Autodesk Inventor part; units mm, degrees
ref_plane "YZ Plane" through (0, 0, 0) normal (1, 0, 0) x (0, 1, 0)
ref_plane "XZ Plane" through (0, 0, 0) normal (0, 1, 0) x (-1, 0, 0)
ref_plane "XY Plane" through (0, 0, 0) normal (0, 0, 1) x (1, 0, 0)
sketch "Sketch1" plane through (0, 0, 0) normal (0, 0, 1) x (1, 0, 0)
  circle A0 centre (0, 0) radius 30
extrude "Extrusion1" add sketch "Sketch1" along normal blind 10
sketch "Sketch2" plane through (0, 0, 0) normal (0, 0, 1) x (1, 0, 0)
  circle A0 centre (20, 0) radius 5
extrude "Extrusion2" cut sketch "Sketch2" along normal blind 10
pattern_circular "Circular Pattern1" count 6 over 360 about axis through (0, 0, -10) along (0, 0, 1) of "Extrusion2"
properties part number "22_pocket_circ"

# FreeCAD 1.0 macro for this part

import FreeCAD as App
import Part
import Sketcher

doc = App.newDocument("Part")
body = doc.addObject("PartDesign::Body", "Body")

# Sketch on XY plane
sketch1 = doc.addObject("Sketcher::SketchObject", "Sketch")
body.addObject(sketch1)
sketch1.AttachmentSupport = (doc.XY_Plane, [""])
sketch1.MapMode = "FlatFace"
sketch1.addGeometry(Part.Circle(App.Vector(0, 0, 0), App.Vector(0, 0, 1), 30), False)
sketch1.addConstraint([
    Sketcher.Constraint("Coincident", 0, 3, -1, 1),
    Sketcher.Constraint("Diameter", 0, 60.0),
])
pad1 = doc.addObject("PartDesign::Pad", "Pad")
body.addObject(pad1)
pad1.Profile = sketch1
pad1.Length = 10

# Sketch on XY plane
sketch2 = doc.addObject("Sketcher::SketchObject", "Sketch001")
body.addObject(sketch2)
sketch2.AttachmentSupport = (doc.XY_Plane, [""])
sketch2.MapMode = "FlatFace"
sketch2.addGeometry(Part.Circle(App.Vector(20, 0, 0), App.Vector(0, 0, 1), 5), False)
sketch2.addConstraint([
    Sketcher.Constraint("PointOnObject", 0, 3, -1),
    Sketcher.Constraint("Diameter", 0, 10.0),
    Sketcher.Constraint("DistanceX", -1, 1, 0, 3, 20.0),
])
pocket1 = doc.addObject("PartDesign::Pocket", "Pocket")
body.addObject(pocket1)
pocket1.Profile = sketch2
pocket1.Length = 10
pocket1.Reversed = True
doc.recompute()

polarpattern = doc.addObject("PartDesign::PolarPattern", "PolarPattern")
body.addObject(polarpattern)
polarpattern.Originals = [pocket1]
polarpattern.Axis = (doc.Z_Axis, [""])
polarpattern.Angle = 360
polarpattern.Occurrences = 6
body.Tip = polarpattern

doc.recompute()
